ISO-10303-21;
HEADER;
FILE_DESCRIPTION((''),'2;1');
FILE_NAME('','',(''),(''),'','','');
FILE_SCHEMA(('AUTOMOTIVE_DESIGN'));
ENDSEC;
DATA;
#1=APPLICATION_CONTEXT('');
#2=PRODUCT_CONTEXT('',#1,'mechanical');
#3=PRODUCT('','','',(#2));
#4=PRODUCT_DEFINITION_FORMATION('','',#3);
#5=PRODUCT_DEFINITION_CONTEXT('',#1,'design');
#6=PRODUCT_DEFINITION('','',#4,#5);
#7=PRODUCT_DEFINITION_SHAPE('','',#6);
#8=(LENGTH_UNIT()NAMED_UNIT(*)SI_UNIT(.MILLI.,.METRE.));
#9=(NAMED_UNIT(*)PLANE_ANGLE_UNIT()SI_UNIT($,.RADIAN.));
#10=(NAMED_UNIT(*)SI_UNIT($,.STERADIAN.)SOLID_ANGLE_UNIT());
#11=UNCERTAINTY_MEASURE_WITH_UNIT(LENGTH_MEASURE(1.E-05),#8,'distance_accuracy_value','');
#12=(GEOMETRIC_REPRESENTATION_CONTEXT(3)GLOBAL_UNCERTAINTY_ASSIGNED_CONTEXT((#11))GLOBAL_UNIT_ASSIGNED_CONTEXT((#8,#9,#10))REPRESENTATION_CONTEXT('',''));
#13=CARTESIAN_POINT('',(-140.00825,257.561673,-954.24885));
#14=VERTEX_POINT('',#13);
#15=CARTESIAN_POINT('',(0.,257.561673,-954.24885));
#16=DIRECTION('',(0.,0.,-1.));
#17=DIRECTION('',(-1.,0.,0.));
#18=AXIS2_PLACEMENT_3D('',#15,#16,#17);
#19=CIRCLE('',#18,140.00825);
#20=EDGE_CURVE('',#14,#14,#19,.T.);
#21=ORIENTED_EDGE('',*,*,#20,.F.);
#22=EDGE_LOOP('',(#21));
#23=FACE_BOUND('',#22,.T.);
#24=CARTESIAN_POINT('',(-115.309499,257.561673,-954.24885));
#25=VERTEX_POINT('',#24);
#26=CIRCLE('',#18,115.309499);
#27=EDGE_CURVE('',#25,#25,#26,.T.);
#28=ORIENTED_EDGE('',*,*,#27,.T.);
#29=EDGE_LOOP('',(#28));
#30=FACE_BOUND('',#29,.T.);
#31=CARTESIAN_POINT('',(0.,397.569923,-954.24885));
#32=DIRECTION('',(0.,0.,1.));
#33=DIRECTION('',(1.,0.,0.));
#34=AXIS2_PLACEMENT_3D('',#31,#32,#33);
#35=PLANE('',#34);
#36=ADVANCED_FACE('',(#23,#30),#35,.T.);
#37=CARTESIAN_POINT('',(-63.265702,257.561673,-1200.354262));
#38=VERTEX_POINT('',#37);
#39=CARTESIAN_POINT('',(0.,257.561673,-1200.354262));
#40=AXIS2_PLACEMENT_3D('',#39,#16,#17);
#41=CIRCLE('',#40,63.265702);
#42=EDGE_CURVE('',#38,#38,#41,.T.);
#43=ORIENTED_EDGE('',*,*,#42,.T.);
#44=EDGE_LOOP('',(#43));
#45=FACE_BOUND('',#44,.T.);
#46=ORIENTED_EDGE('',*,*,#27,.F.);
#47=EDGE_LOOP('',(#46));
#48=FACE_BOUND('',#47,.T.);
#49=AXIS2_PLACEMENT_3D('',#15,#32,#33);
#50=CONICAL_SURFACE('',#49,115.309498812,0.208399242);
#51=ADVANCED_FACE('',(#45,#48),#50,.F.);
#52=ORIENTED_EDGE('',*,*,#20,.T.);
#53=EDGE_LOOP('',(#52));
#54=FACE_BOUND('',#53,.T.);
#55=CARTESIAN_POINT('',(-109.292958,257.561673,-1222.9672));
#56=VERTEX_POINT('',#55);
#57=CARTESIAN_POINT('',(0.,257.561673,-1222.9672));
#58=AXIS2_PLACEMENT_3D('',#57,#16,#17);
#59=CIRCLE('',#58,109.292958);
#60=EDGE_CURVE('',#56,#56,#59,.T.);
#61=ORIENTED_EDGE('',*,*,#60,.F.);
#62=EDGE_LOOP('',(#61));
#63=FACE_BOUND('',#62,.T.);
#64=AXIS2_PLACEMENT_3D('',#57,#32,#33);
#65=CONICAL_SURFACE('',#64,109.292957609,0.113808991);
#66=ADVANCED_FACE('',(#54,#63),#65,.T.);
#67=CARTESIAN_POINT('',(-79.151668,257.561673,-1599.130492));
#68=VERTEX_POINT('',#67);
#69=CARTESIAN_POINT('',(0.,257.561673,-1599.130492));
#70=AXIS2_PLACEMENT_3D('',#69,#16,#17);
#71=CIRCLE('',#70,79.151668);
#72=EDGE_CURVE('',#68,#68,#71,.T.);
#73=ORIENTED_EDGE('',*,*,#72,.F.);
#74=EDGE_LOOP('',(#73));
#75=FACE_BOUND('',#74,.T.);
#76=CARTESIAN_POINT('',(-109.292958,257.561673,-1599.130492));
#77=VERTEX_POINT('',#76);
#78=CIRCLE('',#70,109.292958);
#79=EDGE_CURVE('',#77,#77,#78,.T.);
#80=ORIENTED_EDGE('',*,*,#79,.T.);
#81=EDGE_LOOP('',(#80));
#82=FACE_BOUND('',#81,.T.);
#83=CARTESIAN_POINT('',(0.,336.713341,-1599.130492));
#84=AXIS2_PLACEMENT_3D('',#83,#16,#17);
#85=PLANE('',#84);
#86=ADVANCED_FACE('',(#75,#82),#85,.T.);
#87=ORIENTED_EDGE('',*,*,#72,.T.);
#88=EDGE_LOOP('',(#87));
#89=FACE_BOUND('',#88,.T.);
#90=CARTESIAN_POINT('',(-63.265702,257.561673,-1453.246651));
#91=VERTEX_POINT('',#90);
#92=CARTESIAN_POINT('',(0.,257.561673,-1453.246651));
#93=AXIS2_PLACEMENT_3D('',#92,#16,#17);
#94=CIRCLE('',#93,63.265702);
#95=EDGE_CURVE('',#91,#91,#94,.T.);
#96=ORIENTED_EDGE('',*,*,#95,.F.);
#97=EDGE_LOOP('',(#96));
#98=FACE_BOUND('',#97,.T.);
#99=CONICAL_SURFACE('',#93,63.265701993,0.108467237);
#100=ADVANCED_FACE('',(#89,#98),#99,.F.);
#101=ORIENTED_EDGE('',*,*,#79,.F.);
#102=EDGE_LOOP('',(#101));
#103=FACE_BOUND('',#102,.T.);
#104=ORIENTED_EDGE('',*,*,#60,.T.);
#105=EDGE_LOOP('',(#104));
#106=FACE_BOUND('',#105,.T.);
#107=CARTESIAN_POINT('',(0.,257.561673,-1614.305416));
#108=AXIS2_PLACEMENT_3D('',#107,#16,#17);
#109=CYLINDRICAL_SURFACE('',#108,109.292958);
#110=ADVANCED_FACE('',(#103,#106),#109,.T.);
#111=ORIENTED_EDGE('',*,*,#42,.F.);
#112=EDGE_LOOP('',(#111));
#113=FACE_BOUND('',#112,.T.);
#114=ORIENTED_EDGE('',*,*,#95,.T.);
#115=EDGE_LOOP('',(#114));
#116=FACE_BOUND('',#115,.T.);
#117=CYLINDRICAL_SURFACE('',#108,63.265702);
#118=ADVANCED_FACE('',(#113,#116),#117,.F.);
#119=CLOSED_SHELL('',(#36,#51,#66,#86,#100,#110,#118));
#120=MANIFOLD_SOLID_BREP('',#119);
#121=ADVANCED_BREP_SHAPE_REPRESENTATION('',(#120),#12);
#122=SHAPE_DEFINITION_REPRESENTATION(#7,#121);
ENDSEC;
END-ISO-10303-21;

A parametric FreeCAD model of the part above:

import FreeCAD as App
import Part
import Sketcher
from FreeCAD import Vector
Q = App.Units.Quantity

doc = App.newDocument("Part")
body = doc.addObject("PartDesign::Body", "Body")

sketch1 = doc.addObject("Sketcher::SketchObject", "Sketch")
body.addObject(sketch1)
sketch1.AttachmentSupport = (doc.YZ_Plane, [""])
sketch1.MapMode = "FlatFace"
sketch1.addGeometry([
    Part.LineSegment(Vector(398, -954, 0), Vector(373, -954, 0)),
    Part.LineSegment(Vector(373, -954, 0), Vector(321, -1200, 0)),
    Part.LineSegment(Vector(321, -1200, 0), Vector(321, -1453, 0)),
    Part.LineSegment(Vector(321, -1453, 0), Vector(337, -1599, 0)),
    Part.LineSegment(Vector(337, -1599, 0), Vector(367, -1599, 0)),
    Part.LineSegment(Vector(367, -1599, 0), Vector(367, -1223, 0)),
    Part.LineSegment(Vector(367, -1223, 0), Vector(398, -954, 0)),
], False)
sketch1.addGeometry(Part.LineSegment(Vector(258, -1599, 0), Vector(258, -954, 0)), True)
sketch1.addConstraint([
    Sketcher.Constraint("Coincident", 0, 2, 1, 1),
    Sketcher.Constraint("Coincident", 1, 2, 2, 1),
    Sketcher.Constraint("Coincident", 2, 2, 3, 1),
    Sketcher.Constraint("Coincident", 3, 2, 4, 1),
    Sketcher.Constraint("Coincident", 4, 2, 5, 1),
    Sketcher.Constraint("Coincident", 5, 2, 6, 1),
    Sketcher.Constraint("Coincident", 6, 2, 0, 1),
    Sketcher.Constraint("Horizontal", 0),
    Sketcher.Constraint("Vertical", 2),
    Sketcher.Constraint("Horizontal", 4),
    Sketcher.Constraint("Vertical", 5),
    Sketcher.Constraint("Vertical", 7),
    Sketcher.Constraint("Horizontal", 4, 2, 7, 1),
    Sketcher.Constraint("Horizontal", 6, 2, 7, 2),
    Sketcher.Constraint("DistanceX", 0, 2, 0, 1, Q("24.698751 mm")),
    Sketcher.Constraint("DistanceX", 4, 1, 4, 2, Q("30.141289 mm")),
    Sketcher.Constraint("DistanceY", 2, 2, 2, 1, Q("252.89239 mm")),
    Sketcher.Constraint("DistanceY", 5, 1, 5, 2, Q("376.163292 mm")),
    Sketcher.Constraint("DistanceY", 5, 2, -1, 1, Q("1222.9672 mm")),
    Sketcher.Constraint("DistanceY", 2, 2, 0, 2, Q("498.997802 mm")),
    Sketcher.Constraint("DistanceX", 7, 1, 2, 2, Q("63.265702 mm")),
    Sketcher.Constraint("DistanceX", 7, 2, 0, 2, Q("115.309499 mm")),
    Sketcher.Constraint("Distance", 3, Q("146.74624 mm")),
    Sketcher.Constraint("DistanceY", 7, 1, 7, 2, Q("644.881642 mm")),
    Sketcher.Constraint("DistanceX", -1, 1, 3, 2, Q("336.713341 mm")),
])
revolution = doc.addObject("PartDesign::Revolution", "Revolution")
body.addObject(revolution)
revolution.Profile = sketch1
revolution.ReferenceAxis = (sketch1, ["Axis0"])
revolution.Angle = 360

doc.recompute()
